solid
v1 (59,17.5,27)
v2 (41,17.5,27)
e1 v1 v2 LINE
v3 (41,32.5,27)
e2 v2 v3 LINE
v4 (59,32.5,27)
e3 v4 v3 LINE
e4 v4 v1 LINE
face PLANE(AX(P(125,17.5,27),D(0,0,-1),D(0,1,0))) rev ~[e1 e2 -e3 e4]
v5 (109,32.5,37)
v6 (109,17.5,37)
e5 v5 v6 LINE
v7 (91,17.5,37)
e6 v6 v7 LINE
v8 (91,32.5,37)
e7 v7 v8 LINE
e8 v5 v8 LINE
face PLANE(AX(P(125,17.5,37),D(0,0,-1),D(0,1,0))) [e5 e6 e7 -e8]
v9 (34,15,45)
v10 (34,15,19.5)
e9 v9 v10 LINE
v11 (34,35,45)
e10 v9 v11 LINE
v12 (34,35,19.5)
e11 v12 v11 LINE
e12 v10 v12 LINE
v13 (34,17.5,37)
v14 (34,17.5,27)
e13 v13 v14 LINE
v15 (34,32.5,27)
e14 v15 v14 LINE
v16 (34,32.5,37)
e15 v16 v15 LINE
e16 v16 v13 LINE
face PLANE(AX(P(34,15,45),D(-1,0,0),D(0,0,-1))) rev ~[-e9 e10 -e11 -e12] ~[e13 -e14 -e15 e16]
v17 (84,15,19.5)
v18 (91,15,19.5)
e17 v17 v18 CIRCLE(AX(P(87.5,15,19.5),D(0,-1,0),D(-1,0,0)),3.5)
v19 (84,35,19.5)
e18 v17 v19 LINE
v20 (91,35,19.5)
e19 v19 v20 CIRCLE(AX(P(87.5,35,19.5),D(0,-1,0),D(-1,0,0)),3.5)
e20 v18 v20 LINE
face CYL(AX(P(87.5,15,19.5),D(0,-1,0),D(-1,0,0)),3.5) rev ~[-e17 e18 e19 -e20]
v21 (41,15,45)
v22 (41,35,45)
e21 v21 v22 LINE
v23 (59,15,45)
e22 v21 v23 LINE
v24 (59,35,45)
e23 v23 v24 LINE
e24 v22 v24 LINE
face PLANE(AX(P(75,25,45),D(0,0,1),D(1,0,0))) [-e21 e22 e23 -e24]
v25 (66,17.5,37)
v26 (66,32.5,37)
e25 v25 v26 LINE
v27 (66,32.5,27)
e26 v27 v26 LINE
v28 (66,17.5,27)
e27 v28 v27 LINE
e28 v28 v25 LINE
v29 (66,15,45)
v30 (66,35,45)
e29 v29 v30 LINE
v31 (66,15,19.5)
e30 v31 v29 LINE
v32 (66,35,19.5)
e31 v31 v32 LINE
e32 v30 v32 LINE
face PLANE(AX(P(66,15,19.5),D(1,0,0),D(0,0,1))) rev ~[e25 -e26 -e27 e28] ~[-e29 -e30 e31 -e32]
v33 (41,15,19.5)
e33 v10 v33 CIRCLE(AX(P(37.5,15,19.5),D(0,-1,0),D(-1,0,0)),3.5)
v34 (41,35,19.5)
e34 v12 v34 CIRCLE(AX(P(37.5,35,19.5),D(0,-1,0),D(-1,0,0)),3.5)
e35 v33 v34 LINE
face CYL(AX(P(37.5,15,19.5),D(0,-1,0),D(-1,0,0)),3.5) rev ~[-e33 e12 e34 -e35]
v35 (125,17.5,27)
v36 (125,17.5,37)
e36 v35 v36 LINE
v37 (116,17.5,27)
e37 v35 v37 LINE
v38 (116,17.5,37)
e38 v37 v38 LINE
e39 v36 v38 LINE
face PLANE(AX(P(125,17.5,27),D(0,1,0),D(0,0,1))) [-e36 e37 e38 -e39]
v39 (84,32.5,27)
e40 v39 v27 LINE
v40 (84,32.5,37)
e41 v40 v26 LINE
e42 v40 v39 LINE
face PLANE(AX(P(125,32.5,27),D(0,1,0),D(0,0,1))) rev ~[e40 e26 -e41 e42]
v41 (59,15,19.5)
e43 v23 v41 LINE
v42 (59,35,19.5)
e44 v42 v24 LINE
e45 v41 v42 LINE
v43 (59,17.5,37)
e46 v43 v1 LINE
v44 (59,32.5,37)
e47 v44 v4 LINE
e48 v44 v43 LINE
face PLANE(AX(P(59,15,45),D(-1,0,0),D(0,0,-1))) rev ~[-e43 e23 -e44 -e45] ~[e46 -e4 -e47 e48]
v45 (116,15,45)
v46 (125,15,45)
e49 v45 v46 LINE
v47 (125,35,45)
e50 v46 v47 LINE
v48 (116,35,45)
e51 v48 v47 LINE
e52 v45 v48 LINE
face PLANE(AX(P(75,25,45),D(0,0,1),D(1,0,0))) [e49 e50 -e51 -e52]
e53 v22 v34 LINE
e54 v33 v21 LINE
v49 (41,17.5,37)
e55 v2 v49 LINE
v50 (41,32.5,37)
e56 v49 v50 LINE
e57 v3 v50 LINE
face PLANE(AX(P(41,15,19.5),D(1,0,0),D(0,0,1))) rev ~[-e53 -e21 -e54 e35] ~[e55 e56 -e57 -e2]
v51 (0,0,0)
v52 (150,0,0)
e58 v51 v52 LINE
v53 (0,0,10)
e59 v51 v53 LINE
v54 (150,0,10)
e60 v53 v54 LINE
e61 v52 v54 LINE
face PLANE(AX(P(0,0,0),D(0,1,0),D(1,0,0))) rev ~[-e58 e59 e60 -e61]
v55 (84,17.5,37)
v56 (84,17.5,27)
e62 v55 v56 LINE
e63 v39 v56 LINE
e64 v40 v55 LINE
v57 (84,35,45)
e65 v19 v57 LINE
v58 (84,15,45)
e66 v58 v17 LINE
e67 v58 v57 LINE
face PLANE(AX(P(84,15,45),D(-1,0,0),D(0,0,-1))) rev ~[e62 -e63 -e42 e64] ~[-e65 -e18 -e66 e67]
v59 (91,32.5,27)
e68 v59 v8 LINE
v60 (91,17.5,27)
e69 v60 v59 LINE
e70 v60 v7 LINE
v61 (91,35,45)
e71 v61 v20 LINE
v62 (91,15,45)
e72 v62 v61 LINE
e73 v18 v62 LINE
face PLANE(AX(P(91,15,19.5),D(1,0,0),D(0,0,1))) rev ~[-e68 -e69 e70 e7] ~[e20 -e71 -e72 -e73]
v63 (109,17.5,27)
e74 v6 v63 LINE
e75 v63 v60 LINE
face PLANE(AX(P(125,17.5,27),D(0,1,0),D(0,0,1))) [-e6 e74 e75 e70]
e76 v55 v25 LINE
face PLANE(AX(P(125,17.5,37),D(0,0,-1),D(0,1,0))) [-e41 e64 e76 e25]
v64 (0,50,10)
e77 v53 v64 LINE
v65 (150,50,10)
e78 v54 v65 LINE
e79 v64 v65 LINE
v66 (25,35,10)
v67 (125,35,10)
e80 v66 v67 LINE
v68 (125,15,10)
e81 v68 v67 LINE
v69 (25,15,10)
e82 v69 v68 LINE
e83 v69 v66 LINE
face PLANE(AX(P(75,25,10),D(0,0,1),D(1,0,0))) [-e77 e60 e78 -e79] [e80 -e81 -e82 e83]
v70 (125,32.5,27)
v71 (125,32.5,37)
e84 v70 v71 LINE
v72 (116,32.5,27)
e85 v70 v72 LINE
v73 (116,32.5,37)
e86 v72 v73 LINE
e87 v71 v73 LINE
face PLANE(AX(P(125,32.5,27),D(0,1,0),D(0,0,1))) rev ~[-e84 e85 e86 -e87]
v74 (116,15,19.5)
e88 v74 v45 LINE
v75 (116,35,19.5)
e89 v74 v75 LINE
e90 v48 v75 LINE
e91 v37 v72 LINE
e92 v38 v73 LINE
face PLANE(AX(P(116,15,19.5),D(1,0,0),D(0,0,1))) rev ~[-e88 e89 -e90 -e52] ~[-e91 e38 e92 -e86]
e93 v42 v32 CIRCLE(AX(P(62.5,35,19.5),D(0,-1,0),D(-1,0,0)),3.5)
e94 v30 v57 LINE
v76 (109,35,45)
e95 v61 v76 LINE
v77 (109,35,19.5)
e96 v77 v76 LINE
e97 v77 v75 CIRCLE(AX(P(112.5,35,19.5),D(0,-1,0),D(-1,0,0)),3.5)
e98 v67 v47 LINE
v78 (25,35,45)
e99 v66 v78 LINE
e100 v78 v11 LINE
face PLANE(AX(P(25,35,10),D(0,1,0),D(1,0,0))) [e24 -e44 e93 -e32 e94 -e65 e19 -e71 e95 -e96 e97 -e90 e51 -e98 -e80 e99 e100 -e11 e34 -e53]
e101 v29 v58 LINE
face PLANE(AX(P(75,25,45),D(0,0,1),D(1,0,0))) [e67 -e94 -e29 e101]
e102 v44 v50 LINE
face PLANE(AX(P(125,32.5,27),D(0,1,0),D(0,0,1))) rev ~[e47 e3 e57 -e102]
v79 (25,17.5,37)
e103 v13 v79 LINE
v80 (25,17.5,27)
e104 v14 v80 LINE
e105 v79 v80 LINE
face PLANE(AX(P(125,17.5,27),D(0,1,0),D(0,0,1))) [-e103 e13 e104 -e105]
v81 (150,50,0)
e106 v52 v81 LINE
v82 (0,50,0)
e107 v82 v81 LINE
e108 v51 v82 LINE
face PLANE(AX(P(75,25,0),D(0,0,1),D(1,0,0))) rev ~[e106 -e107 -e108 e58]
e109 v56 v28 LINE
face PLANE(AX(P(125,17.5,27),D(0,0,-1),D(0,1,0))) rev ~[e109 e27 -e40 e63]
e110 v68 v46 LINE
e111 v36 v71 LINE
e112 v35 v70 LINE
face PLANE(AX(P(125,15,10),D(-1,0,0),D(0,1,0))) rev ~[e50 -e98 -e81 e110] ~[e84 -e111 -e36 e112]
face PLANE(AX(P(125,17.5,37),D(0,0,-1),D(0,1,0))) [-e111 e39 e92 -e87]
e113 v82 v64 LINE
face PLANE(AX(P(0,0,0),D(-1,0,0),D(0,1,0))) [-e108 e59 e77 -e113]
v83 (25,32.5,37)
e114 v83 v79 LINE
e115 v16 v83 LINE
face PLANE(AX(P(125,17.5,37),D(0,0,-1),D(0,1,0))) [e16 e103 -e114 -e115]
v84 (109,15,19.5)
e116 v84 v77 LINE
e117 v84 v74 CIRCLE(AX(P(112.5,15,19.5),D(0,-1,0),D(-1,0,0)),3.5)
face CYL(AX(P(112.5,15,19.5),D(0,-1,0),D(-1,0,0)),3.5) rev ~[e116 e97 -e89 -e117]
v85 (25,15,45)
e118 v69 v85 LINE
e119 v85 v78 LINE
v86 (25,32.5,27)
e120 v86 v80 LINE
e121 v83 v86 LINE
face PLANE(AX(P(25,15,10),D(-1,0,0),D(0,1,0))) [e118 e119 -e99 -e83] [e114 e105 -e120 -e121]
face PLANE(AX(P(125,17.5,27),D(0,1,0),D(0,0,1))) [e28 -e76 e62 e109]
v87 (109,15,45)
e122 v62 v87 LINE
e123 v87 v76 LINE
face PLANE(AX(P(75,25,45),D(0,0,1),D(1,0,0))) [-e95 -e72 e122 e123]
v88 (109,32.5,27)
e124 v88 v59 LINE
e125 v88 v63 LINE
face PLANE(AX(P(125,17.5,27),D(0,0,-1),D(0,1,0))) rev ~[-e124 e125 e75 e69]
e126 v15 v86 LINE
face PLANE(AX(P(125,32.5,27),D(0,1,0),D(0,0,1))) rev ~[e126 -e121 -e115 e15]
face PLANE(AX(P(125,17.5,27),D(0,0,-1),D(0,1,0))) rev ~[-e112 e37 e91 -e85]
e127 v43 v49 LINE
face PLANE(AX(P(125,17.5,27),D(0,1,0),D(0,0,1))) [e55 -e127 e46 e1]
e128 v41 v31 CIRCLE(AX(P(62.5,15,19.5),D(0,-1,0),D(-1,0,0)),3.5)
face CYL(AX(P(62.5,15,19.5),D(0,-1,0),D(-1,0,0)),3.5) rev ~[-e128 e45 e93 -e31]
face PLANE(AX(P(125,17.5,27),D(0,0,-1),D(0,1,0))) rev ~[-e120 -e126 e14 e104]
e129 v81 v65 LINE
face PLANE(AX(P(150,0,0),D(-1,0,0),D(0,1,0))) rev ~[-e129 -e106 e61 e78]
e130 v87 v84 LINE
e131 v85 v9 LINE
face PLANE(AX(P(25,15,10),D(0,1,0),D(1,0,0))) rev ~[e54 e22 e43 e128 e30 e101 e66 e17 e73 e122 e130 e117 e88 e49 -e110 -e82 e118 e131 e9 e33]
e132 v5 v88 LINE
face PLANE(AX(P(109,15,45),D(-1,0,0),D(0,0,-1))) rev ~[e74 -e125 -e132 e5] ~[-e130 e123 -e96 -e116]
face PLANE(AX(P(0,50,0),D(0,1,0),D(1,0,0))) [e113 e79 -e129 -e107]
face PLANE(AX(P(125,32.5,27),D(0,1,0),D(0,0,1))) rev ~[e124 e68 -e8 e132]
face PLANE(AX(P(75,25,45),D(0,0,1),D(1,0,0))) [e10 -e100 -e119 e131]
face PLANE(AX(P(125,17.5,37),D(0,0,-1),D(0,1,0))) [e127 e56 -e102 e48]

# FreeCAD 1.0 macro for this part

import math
import FreeCAD as App
import Part
import Sketcher


def add_polygon(sketch, points):
    """Adds a closed chain of lines whose ends are joined by coincident constraints."""
    first, n = sketch.GeometryCount, len(points)
    for a, b in zip(points, points[1:] + points[:1]):
        sketch.addGeometry(Part.LineSegment(App.Vector(*a, 0), App.Vector(*b, 0)), False)
    for i in range(n):
        sketch.addConstraint(Sketcher.Constraint("Coincident", first + i, 2, first + (i + 1) % n, 1))

doc = App.newDocument("Part")
body = doc.addObject("PartDesign::Body", "Body")

sketch1 = body.newObject("Sketcher::SketchObject", "Sketch")
sketch1.AttachmentSupport = (doc.getObject("XY_Plane"), [""])
sketch1.MapMode = "FlatFace"
add_polygon(sketch1, [(0, 50), (0, 0), (150, 0), (150, 50)])
sketch1.addConstraint([
    Sketcher.Constraint("Vertical", 0),
    Sketcher.Constraint("Horizontal", 1),
    Sketcher.Constraint("Vertical", 2),
    Sketcher.Constraint("Horizontal", 3),
    Sketcher.Constraint("Coincident", 0, 2, -1, 1),
    Sketcher.Constraint("DistanceX", 1, 1, 1, 2, 150.0),
    Sketcher.Constraint("DistanceY", 0, 2, 0, 1, 50.0),
])
pad1 = body.newObject("PartDesign::Pad", "Pad")
pad1.Profile = sketch1
pad1.Length = 10

sketch2 = body.newObject("Sketcher::SketchObject", "Sketch001")
sketch2.AttachmentSupport = (doc.getObject("XY_Plane"), [""])
sketch2.MapMode = "FlatFace"
sketch2.AttachmentOffset = App.Placement(App.Vector(0, 0, 10), App.Rotation())
add_polygon(sketch2, [(25, 35), (25, 15), (125, 15), (125, 35)])
sketch2.addConstraint([
    Sketcher.Constraint("Vertical", 0),
    Sketcher.Constraint("Horizontal", 1),
    Sketcher.Constraint("Vertical", 2),
    Sketcher.Constraint("Horizontal", 3),
    Sketcher.Constraint("DistanceX", 1, 1, 1, 2, 100.0),
    Sketcher.Constraint("DistanceY", 0, 2, 0, 1, 20.0),
    Sketcher.Constraint("DistanceX", -1, 1, 0, 2, 25.0),
    Sketcher.Constraint("DistanceY", -1, 1, 0, 2, 15.0),
])
pad2 = body.newObject("PartDesign::Pad", "Pad001")
pad2.Profile = sketch2
pad2.Length = 35

sketch3 = body.newObject("Sketcher::SketchObject", "Sketch002")
sketch3.AttachmentSupport = (doc.getObject("XZ_Plane"), [""])
sketch3.MapMode = "FlatFace"
sketch3.AttachmentOffset = App.Placement(App.Vector(0, 0, -15), App.Rotation())
sketch3.addGeometry([
    Part.LineSegment(App.Vector(41, 45, 0), App.Vector(34, 45, 0)),
    Part.LineSegment(App.Vector(34, 45, 0), App.Vector(34, 19.5, 0)),
    Part.ArcOfCircle(Part.Circle(App.Vector(37.5, 19.5, 0), App.Vector(0, 0, 1), 3.5), math.radians(180), math.radians(360)),
    Part.LineSegment(App.Vector(41, 19.5, 0), App.Vector(41, 45, 0)),
    Part.LineSegment(App.Vector(116, 19.5, 0), App.Vector(116, 45, 0)),
    Part.LineSegment(App.Vector(116, 45, 0), App.Vector(109, 45, 0)),
    Part.LineSegment(App.Vector(109, 45, 0), App.Vector(109, 19.5, 0)),
    Part.ArcOfCircle(Part.Circle(App.Vector(112.5, 19.5, 0), App.Vector(0, 0, 1), 3.5), math.radians(180), math.radians(360)),
    Part.LineSegment(App.Vector(66, 45, 0), App.Vector(59, 45, 0)),
    Part.LineSegment(App.Vector(59, 45, 0), App.Vector(59, 19.5, 0)),
    Part.ArcOfCircle(Part.Circle(App.Vector(62.5, 19.5, 0), App.Vector(0, 0, 1), 3.5), math.radians(180), math.radians(360)),
    Part.LineSegment(App.Vector(66, 19.5, 0), App.Vector(66, 45, 0)),
    Part.ArcOfCircle(Part.Circle(App.Vector(87.5, 19.5, 0), App.Vector(0, 0, 1), 3.5), math.radians(180), math.radians(360)),
    Part.LineSegment(App.Vector(91, 19.5, 0), App.Vector(91, 45, 0)),
    Part.LineSegment(App.Vector(91, 45, 0), App.Vector(84, 45, 0)),
    Part.LineSegment(App.Vector(84, 45, 0), App.Vector(84, 19.5, 0)),
], False)
sketch3.addConstraint([
    Sketcher.Constraint("Coincident", 0, 2, 1, 1),
    Sketcher.Constraint("Tangent", 1, 2, 2, 1),
    Sketcher.Constraint("Tangent", 2, 2, 3, 1),
    Sketcher.Constraint("Coincident", 3, 2, 0, 1),
    Sketcher.Constraint("Coincident", 4, 2, 5, 1),
    Sketcher.Constraint("Coincident", 5, 2, 6, 1),
    Sketcher.Constraint("Tangent", 6, 2, 7, 1),
    Sketcher.Constraint("Tangent", 7, 2, 4, 1),
    Sketcher.Constraint("Coincident", 8, 2, 9, 1),
    Sketcher.Constraint("Tangent", 9, 2, 10, 1),
    Sketcher.Constraint("Tangent", 10, 2, 11, 1),
    Sketcher.Constraint("Coincident", 11, 2, 8, 1),
    Sketcher.Constraint("Tangent", 12, 2, 13, 1),
    Sketcher.Constraint("Coincident", 13, 2, 14, 1),
    Sketcher.Constraint("Coincident", 14, 2, 15, 1),
    Sketcher.Constraint("Tangent", 15, 2, 12, 1),
    Sketcher.Constraint("Horizontal", 0),
    Sketcher.Constraint("Vertical", 1),
    Sketcher.Constraint("Vertical", 3),
    Sketcher.Constraint("Vertical", 4),
    Sketcher.Constraint("Horizontal", 5),
    Sketcher.Constraint("Vertical", 6),
    Sketcher.Constraint("Horizontal", 8),
    Sketcher.Constraint("Vertical", 9),
    Sketcher.Constraint("Vertical", 11),
    Sketcher.Constraint("Vertical", 13),
    Sketcher.Constraint("Horizontal", 14),
    Sketcher.Constraint("Vertical", 15),
    Sketcher.Constraint("Equal", 2, 7),
    Sketcher.Constraint("Equal", 7, 10),
    Sketcher.Constraint("Equal", 10, 12),
    Sketcher.Constraint("Horizontal", 2, 3, 7, 3),
    Sketcher.Constraint("Horizontal", 7, 3, 10, 3),
    Sketcher.Constraint("Horizontal", 10, 3, 12, 3),
    Sketcher.Constraint("Horizontal", 3, 2, 4, 2),
    Sketcher.Constraint("Horizontal", 5, 2, 8, 2),
    Sketcher.Constraint("Horizontal", 11, 2, 13, 2),
    Sketcher.Constraint("Radius", 2, 3.5),
    Sketcher.Constraint("DistanceY", 1, 2, 1, 1, 25.5),
    Sketcher.Constraint("DistanceX", -1, 1, 0, 2, 34.0),
    Sketcher.Constraint("DistanceY", -1, 1, 0, 2, 45.0),
    Sketcher.Constraint("DistanceX", -1, 1, 4, 2, 116.0),
    Sketcher.Constraint("DistanceX", -1, 1, 8, 2, 59.0),
    Sketcher.Constraint("DistanceX", -1, 1, 12, 2, 91.0),
])
pocket1 = body.newObject("PartDesign::Pocket", "Pocket")
pocket1.Profile = sketch3
pocket1.Type = "ThroughAll"

sketch4 = body.newObject("Sketcher::SketchObject", "Sketch003")
sketch4.AttachmentSupport = (doc.getObject("YZ_Plane"), [""])
sketch4.MapMode = "FlatFace"
sketch4.AttachmentOffset = App.Placement(App.Vector(0, 0, 125), App.Rotation())
add_polygon(sketch4, [(18, 37), (18, 27), (32, 27), (32, 37)])
sketch4.addConstraint([
    Sketcher.Constraint("Vertical", 0),
    Sketcher.Constraint("Horizontal", 1),
    Sketcher.Constraint("Vertical", 2),
    Sketcher.Constraint("Horizontal", 3),
    Sketcher.Constraint("DistanceX", 1, 1, 1, 2, 15.0),
    Sketcher.Constraint("DistanceY", 0, 2, 0, 1, 10.0),
    Sketcher.Constraint("DistanceY", -1, 1, 0, 2, 27.0),
    Sketcher.Constraint("DistanceX", -1, 1, 0, 2, 17.5),
])
pocket2 = body.newObject("PartDesign::Pocket", "Pocket001")
pocket2.Profile = sketch4
pocket2.Type = "ThroughAll"

doc.recompute()
